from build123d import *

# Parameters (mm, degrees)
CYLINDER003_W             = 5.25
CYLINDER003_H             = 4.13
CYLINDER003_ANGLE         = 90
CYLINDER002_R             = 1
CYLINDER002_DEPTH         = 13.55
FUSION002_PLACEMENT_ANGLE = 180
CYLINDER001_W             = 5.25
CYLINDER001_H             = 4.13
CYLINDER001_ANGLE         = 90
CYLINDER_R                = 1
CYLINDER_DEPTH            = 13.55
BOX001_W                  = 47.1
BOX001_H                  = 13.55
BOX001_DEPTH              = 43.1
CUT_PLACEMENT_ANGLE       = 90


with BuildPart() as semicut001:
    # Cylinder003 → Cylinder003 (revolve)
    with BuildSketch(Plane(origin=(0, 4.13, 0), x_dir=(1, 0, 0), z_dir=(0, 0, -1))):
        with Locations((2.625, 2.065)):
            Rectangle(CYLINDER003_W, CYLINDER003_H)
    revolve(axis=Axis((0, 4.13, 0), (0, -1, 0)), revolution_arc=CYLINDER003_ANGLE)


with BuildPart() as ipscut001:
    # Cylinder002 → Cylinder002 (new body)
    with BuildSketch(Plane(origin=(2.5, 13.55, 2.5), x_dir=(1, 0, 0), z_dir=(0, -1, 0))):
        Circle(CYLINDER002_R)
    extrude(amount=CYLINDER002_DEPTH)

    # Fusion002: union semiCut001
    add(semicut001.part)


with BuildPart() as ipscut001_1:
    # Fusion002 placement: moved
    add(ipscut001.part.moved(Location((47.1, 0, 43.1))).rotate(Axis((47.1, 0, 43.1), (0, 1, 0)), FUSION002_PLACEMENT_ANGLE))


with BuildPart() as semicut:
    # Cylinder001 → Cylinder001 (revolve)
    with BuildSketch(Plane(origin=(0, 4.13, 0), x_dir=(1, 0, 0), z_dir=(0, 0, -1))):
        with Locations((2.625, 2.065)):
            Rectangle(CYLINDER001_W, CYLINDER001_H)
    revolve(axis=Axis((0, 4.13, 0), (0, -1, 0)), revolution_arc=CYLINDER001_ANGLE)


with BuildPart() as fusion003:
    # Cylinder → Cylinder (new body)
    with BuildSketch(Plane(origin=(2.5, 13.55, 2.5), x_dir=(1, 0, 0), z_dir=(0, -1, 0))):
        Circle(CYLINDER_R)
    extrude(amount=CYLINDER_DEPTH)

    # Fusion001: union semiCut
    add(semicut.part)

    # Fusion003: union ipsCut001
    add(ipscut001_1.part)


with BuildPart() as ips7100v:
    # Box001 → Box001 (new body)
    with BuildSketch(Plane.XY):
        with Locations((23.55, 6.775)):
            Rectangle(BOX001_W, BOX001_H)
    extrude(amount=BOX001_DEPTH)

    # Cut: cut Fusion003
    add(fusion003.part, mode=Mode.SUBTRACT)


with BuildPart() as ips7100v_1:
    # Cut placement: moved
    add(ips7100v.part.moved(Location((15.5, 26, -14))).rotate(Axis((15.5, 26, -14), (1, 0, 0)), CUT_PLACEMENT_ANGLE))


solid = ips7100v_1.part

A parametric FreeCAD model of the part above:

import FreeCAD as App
import Part
import Sketcher

V = App.Vector
Q = App.Units.Quantity


def add_polygon(sketch, points):
    """Adds a closed chain of lines whose ends are joined by coincident constraints."""
    first, n = sketch.GeometryCount, len(points)
    for a, b in zip(points, points[1:] + points[:1]):
        sketch.addGeometry(Part.LineSegment(App.Vector(*a, 0), App.Vector(*b, 0)), False)
    for i in range(n):
        sketch.addConstraint(Sketcher.Constraint("Coincident", first + i, 2, first + (i + 1) % n, 1))

doc = App.newDocument("Part")
body = doc.addObject("PartDesign::Body", "Body")

# Sketch on XY plane
sketch1 = body.newObject("Sketcher::SketchObject", "Sketch")
sketch1.AttachmentSupport = (doc.getObject("XY_Plane"), [""])
sketch1.MapMode = "FlatFace"
add_polygon(sketch1, [(0, 0), (0, 4.13), (5.25, 4.13), (5.25, 0)])  # lines 0-3
sketch1.addConstraint([
    Sketcher.Constraint("Vertical", 0),
    Sketcher.Constraint("Horizontal", 1),
    Sketcher.Constraint("Vertical", 2),
    Sketcher.Constraint("Horizontal", 3),
    Sketcher.Constraint("Coincident", 3, 2, -1, 1),
    Sketcher.Constraint("DistanceX", 1, 1, 1, 2, Q("5.25 mm")),
    Sketcher.Constraint("DistanceY", 0, 1, 0, 2, Q("4.13 mm")),
])
revolution = body.newObject("PartDesign::Revolution", "Revolution")
revolution.Profile = sketch1
revolution.ReferenceAxis = (sketch1, ["V_Axis"])
revolution.Angle = 90
revolution.Reversed = True
body2 = doc.addObject("PartDesign::Body", "Body001")

# Sketch on XZ plane
sketch2 = body2.newObject("Sketcher::SketchObject", "Sketch001")
sketch2.AttachmentSupport = (doc.getObject("XZ_Plane001"), [""])
sketch2.MapMode = "FlatFace"
sketch2.AttachmentOffset = App.Placement(V(0, 0, -13.55), App.Rotation())
sketch2.addGeometry(Part.Circle(V(2.5, 2.5, 0), V(0, 0, 1), 1), False)
sketch2.addConstraint([
    Sketcher.Constraint("Diameter", 0, Q("2 mm")),
    Sketcher.Constraint("DistanceX", -1, 1, 0, 3, Q("2.5 mm")),
    Sketcher.Constraint("DistanceY", -1, 1, 0, 3, Q("2.5 mm")),
])
pad1 = body2.newObject("PartDesign::Pad", "Pad")
pad1.Profile = sketch2
pad1.Length = 13.55
doc.recompute()

boolean = body2.newObject("PartDesign::Boolean", "Boolean")
boolean.Type = "Fuse"
boolean.addObjects([body])
body3 = doc.addObject("PartDesign::Body", "Body002")
doc.recompute()

body2.Placement = App.Placement(V(47.1, 0, 43.1), App.Rotation(V(0, 1, 0), 180))
boolean2 = body3.newObject("PartDesign::Boolean", "Boolean001")
boolean2.Type = "Fuse"
boolean2.addObjects([body2])
body4 = doc.addObject("PartDesign::Body", "Body003")

# Sketch on XY plane
sketch3 = body4.newObject("Sketcher::SketchObject", "Sketch002")
sketch3.AttachmentSupport = (doc.getObject("XY_Plane003"), [""])
sketch3.MapMode = "FlatFace"
add_polygon(sketch3, [(0, 0), (0, 4.13), (5.25, 4.13), (5.25, 0)])  # lines 0-3
sketch3.addConstraint([
    Sketcher.Constraint("Vertical", 0),
    Sketcher.Constraint("Horizontal", 1),
    Sketcher.Constraint("Vertical", 2),
    Sketcher.Constraint("Horizontal", 3),
    Sketcher.Constraint("Coincident", 3, 2, -1, 1),
    Sketcher.Constraint("DistanceX", 1, 1, 1, 2, Q("5.25 mm")),
    Sketcher.Constraint("DistanceY", 0, 1, 0, 2, Q("4.13 mm")),
])
revolution2 = body4.newObject("PartDesign::Revolution", "Revolution001")
revolution2.Profile = sketch3
revolution2.ReferenceAxis = (sketch3, ["V_Axis"])
revolution2.Angle = 90
revolution2.Reversed = True
body5 = doc.addObject("PartDesign::Body", "Body004")
body5.AllowCompound = True

# Sketch on XZ plane
sketch4 = body5.newObject("Sketcher::SketchObject", "Sketch003")
sketch4.AttachmentSupport = (doc.getObject("XZ_Plane004"), [""])
sketch4.MapMode = "FlatFace"
sketch4.AttachmentOffset = App.Placement(V(0, 0, -13.55), App.Rotation())
sketch4.addGeometry(Part.Circle(V(2.5, 2.5, 0), V(0, 0, 1), 1), False)
sketch4.addConstraint([
    Sketcher.Constraint("Diameter", 0, Q("2 mm")),
    Sketcher.Constraint("DistanceX", -1, 1, 0, 3, Q("2.5 mm")),
    Sketcher.Constraint("DistanceY", -1, 1, 0, 3, Q("2.5 mm")),
])
pad2 = body5.newObject("PartDesign::Pad", "Pad001")
pad2.Profile = sketch4
pad2.Length = 13.55
doc.recompute()

boolean3 = body5.newObject("PartDesign::Boolean", "Boolean002")
boolean3.Type = "Fuse"
boolean3.addObjects([body4])
doc.recompute()

boolean4 = body5.newObject("PartDesign::Boolean", "Boolean003")
boolean4.Type = "Fuse"
boolean4.addObjects([body3])
body6 = doc.addObject("PartDesign::Body", "Body005")

# Sketch on XY plane
sketch5 = body6.newObject("Sketcher::SketchObject", "Sketch004")
sketch5.AttachmentSupport = (doc.getObject("XY_Plane005"), [""])
sketch5.MapMode = "FlatFace"
add_polygon(sketch5, [(0, 13.55), (0, 0), (47.1, 0), (47.1, 13.55)])  # lines 0-3
sketch5.addConstraint([
    Sketcher.Constraint("Vertical", 0),
    Sketcher.Constraint("Horizontal", 1),
    Sketcher.Constraint("Vertical", 2),
    Sketcher.Constraint("Horizontal", 3),
    Sketcher.Constraint("Coincident", 0, 2, -1, 1),
    Sketcher.Constraint("DistanceX", 1, 1, 1, 2, Q("47.1 mm")),
    Sketcher.Constraint("DistanceY", 0, 2, 0, 1, Q("13.55 mm")),
])
pad3 = body6.newObject("PartDesign::Pad", "Pad002")
pad3.Profile = sketch5
pad3.Length = 43.1
doc.recompute()

boolean5 = body6.newObject("PartDesign::Boolean", "Boolean004")
boolean5.Type = "Cut"
boolean5.addObjects([body5])
body7 = doc.addObject("PartDesign::Body", "Body006")
doc.recompute()

body6.Placement = App.Placement(V(15.5, 26, -14), App.Rotation(V(1, 0, 0), 90))
boolean6 = body7.newObject("PartDesign::Boolean", "Boolean005")
boolean6.Type = "Fuse"
boolean6.addObjects([body6])

doc.recompute()
